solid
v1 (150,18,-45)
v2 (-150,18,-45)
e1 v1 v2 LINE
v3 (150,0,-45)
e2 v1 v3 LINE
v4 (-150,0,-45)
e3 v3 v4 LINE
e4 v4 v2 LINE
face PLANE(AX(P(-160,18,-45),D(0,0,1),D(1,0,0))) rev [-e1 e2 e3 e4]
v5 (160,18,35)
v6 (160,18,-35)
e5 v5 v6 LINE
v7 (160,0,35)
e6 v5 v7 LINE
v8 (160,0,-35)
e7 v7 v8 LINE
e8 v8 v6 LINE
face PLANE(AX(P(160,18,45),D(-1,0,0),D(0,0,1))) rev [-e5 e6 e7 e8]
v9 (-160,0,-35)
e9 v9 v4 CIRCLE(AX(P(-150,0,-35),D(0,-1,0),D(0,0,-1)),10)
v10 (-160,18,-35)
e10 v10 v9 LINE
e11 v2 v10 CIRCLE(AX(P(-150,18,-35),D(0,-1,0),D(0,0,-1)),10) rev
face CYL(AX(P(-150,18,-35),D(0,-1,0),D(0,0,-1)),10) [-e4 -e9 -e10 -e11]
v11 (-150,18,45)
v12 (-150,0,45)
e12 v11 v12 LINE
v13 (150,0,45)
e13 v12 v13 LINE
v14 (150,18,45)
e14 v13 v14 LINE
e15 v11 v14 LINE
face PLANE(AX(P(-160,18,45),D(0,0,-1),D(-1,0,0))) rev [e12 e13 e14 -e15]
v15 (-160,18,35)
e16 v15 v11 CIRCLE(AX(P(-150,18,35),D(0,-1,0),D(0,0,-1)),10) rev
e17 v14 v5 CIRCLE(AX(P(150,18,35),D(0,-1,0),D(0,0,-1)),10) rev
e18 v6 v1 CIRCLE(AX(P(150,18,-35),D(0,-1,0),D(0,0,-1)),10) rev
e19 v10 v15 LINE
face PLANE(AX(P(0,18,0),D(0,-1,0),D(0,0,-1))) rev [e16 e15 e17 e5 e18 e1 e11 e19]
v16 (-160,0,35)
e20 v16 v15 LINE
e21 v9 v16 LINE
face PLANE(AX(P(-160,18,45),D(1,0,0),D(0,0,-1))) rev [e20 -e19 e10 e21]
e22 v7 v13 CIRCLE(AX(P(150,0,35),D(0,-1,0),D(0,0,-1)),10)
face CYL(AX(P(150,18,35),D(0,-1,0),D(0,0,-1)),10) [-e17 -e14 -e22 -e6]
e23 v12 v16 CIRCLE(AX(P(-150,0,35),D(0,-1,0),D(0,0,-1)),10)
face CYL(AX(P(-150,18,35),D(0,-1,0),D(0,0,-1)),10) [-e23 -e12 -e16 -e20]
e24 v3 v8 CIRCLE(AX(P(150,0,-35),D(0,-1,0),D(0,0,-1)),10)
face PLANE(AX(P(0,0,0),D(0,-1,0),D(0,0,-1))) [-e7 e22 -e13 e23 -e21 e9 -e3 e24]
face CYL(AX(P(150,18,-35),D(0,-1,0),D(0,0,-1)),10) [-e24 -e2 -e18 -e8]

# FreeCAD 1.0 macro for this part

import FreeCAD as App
import Part
import Sketcher


def edges_at(feature, points):
    """Names of the edges that pass closest to the given points."""
    edges = feature.Shape.Edges
    near = lambda p: min(range(len(edges)), key=lambda i: edges[i].distToShape(Part.Vertex(*p))[0])
    return sorted({f"Edge{near(p) + 1}" for p in points})

doc = App.newDocument("Part")
params = doc.addObject("Spreadsheet::Sheet", "Params")
for row, (alias, value) in enumerate([
    ("sketch1_width", "320 mm"),
    ("sketch1_height", "90 mm"),
    ("pad1_length", "18 mm"),
    ("fillet_radius", "10 mm"),
], start=1):
    params.set(f"A{row}", alias)
    params.set(f"B{row}", "=" + value)
    params.setAlias(f"B{row}", alias)

body = doc.addObject("PartDesign::Body", "Body")

sketch1 = doc.addObject("Sketcher::SketchObject", "Sketch")
body.addObject(sketch1)
sketch1.AttachmentSupport = (doc.XZ_Plane, [""])
sketch1.MapMode = "FlatFace"
sketch1.addGeometry(Part.LineSegment(App.Vector(-160, -45, 0), App.Vector(-160, 45, 0)), False)
sketch1.addGeometry(Part.LineSegment(App.Vector(-160, 45, 0), App.Vector(160, 45, 0)), False)
sketch1.addGeometry(Part.LineSegment(App.Vector(160, 45, 0), App.Vector(160, -45, 0)), False)
sketch1.addGeometry(Part.LineSegment(App.Vector(160, -45, 0), App.Vector(-160, -45, 0)), False)
sketch1.addConstraint(Sketcher.Constraint("Coincident", 0, 2, 1, 1))
sketch1.addConstraint(Sketcher.Constraint("Coincident", 1, 2, 2, 1))
sketch1.addConstraint(Sketcher.Constraint("Coincident", 2, 2, 3, 1))
sketch1.addConstraint(Sketcher.Constraint("Coincident", 3, 2, 0, 1))
sketch1.addConstraint(Sketcher.Constraint("Vertical", 0))
sketch1.addConstraint(Sketcher.Constraint("Horizontal", 1))
sketch1.addConstraint(Sketcher.Constraint("Vertical", 2))
sketch1.addConstraint(Sketcher.Constraint("Horizontal", 3))
sketch1.addConstraint(Sketcher.Constraint("Symmetric", 0, 2, 2, 2, -1, 1))
sketch1.addConstraint(Sketcher.Constraint("DistanceX", 1, 1, 1, 2, 320.0))
sketch1.addConstraint(Sketcher.Constraint("DistanceY", 0, 1, 0, 2, 90.0))
sketch1.setExpression("Constraints[9]", "Params.sketch1_width")
sketch1.setExpression("Constraints[10]", "Params.sketch1_height")
pad1 = doc.addObject("PartDesign::Pad", "Pad")
body.addObject(pad1)
pad1.Profile = sketch1
pad1.setExpression("Length", "Params.pad1_length")
pad1.Reversed = True
doc.recompute()

fillet = doc.addObject("PartDesign::Fillet", "Fillet")
body.addObject(fillet)
fillet.Base = (pad1, edges_at(pad1, [
    (-160, 9, -45),
    (160, 9, -45),
    (160, 9, 45),
    (-160, 9, 45),
]))
fillet.setExpression("Radius", "Params.fillet_radius")

doc.recompute()
